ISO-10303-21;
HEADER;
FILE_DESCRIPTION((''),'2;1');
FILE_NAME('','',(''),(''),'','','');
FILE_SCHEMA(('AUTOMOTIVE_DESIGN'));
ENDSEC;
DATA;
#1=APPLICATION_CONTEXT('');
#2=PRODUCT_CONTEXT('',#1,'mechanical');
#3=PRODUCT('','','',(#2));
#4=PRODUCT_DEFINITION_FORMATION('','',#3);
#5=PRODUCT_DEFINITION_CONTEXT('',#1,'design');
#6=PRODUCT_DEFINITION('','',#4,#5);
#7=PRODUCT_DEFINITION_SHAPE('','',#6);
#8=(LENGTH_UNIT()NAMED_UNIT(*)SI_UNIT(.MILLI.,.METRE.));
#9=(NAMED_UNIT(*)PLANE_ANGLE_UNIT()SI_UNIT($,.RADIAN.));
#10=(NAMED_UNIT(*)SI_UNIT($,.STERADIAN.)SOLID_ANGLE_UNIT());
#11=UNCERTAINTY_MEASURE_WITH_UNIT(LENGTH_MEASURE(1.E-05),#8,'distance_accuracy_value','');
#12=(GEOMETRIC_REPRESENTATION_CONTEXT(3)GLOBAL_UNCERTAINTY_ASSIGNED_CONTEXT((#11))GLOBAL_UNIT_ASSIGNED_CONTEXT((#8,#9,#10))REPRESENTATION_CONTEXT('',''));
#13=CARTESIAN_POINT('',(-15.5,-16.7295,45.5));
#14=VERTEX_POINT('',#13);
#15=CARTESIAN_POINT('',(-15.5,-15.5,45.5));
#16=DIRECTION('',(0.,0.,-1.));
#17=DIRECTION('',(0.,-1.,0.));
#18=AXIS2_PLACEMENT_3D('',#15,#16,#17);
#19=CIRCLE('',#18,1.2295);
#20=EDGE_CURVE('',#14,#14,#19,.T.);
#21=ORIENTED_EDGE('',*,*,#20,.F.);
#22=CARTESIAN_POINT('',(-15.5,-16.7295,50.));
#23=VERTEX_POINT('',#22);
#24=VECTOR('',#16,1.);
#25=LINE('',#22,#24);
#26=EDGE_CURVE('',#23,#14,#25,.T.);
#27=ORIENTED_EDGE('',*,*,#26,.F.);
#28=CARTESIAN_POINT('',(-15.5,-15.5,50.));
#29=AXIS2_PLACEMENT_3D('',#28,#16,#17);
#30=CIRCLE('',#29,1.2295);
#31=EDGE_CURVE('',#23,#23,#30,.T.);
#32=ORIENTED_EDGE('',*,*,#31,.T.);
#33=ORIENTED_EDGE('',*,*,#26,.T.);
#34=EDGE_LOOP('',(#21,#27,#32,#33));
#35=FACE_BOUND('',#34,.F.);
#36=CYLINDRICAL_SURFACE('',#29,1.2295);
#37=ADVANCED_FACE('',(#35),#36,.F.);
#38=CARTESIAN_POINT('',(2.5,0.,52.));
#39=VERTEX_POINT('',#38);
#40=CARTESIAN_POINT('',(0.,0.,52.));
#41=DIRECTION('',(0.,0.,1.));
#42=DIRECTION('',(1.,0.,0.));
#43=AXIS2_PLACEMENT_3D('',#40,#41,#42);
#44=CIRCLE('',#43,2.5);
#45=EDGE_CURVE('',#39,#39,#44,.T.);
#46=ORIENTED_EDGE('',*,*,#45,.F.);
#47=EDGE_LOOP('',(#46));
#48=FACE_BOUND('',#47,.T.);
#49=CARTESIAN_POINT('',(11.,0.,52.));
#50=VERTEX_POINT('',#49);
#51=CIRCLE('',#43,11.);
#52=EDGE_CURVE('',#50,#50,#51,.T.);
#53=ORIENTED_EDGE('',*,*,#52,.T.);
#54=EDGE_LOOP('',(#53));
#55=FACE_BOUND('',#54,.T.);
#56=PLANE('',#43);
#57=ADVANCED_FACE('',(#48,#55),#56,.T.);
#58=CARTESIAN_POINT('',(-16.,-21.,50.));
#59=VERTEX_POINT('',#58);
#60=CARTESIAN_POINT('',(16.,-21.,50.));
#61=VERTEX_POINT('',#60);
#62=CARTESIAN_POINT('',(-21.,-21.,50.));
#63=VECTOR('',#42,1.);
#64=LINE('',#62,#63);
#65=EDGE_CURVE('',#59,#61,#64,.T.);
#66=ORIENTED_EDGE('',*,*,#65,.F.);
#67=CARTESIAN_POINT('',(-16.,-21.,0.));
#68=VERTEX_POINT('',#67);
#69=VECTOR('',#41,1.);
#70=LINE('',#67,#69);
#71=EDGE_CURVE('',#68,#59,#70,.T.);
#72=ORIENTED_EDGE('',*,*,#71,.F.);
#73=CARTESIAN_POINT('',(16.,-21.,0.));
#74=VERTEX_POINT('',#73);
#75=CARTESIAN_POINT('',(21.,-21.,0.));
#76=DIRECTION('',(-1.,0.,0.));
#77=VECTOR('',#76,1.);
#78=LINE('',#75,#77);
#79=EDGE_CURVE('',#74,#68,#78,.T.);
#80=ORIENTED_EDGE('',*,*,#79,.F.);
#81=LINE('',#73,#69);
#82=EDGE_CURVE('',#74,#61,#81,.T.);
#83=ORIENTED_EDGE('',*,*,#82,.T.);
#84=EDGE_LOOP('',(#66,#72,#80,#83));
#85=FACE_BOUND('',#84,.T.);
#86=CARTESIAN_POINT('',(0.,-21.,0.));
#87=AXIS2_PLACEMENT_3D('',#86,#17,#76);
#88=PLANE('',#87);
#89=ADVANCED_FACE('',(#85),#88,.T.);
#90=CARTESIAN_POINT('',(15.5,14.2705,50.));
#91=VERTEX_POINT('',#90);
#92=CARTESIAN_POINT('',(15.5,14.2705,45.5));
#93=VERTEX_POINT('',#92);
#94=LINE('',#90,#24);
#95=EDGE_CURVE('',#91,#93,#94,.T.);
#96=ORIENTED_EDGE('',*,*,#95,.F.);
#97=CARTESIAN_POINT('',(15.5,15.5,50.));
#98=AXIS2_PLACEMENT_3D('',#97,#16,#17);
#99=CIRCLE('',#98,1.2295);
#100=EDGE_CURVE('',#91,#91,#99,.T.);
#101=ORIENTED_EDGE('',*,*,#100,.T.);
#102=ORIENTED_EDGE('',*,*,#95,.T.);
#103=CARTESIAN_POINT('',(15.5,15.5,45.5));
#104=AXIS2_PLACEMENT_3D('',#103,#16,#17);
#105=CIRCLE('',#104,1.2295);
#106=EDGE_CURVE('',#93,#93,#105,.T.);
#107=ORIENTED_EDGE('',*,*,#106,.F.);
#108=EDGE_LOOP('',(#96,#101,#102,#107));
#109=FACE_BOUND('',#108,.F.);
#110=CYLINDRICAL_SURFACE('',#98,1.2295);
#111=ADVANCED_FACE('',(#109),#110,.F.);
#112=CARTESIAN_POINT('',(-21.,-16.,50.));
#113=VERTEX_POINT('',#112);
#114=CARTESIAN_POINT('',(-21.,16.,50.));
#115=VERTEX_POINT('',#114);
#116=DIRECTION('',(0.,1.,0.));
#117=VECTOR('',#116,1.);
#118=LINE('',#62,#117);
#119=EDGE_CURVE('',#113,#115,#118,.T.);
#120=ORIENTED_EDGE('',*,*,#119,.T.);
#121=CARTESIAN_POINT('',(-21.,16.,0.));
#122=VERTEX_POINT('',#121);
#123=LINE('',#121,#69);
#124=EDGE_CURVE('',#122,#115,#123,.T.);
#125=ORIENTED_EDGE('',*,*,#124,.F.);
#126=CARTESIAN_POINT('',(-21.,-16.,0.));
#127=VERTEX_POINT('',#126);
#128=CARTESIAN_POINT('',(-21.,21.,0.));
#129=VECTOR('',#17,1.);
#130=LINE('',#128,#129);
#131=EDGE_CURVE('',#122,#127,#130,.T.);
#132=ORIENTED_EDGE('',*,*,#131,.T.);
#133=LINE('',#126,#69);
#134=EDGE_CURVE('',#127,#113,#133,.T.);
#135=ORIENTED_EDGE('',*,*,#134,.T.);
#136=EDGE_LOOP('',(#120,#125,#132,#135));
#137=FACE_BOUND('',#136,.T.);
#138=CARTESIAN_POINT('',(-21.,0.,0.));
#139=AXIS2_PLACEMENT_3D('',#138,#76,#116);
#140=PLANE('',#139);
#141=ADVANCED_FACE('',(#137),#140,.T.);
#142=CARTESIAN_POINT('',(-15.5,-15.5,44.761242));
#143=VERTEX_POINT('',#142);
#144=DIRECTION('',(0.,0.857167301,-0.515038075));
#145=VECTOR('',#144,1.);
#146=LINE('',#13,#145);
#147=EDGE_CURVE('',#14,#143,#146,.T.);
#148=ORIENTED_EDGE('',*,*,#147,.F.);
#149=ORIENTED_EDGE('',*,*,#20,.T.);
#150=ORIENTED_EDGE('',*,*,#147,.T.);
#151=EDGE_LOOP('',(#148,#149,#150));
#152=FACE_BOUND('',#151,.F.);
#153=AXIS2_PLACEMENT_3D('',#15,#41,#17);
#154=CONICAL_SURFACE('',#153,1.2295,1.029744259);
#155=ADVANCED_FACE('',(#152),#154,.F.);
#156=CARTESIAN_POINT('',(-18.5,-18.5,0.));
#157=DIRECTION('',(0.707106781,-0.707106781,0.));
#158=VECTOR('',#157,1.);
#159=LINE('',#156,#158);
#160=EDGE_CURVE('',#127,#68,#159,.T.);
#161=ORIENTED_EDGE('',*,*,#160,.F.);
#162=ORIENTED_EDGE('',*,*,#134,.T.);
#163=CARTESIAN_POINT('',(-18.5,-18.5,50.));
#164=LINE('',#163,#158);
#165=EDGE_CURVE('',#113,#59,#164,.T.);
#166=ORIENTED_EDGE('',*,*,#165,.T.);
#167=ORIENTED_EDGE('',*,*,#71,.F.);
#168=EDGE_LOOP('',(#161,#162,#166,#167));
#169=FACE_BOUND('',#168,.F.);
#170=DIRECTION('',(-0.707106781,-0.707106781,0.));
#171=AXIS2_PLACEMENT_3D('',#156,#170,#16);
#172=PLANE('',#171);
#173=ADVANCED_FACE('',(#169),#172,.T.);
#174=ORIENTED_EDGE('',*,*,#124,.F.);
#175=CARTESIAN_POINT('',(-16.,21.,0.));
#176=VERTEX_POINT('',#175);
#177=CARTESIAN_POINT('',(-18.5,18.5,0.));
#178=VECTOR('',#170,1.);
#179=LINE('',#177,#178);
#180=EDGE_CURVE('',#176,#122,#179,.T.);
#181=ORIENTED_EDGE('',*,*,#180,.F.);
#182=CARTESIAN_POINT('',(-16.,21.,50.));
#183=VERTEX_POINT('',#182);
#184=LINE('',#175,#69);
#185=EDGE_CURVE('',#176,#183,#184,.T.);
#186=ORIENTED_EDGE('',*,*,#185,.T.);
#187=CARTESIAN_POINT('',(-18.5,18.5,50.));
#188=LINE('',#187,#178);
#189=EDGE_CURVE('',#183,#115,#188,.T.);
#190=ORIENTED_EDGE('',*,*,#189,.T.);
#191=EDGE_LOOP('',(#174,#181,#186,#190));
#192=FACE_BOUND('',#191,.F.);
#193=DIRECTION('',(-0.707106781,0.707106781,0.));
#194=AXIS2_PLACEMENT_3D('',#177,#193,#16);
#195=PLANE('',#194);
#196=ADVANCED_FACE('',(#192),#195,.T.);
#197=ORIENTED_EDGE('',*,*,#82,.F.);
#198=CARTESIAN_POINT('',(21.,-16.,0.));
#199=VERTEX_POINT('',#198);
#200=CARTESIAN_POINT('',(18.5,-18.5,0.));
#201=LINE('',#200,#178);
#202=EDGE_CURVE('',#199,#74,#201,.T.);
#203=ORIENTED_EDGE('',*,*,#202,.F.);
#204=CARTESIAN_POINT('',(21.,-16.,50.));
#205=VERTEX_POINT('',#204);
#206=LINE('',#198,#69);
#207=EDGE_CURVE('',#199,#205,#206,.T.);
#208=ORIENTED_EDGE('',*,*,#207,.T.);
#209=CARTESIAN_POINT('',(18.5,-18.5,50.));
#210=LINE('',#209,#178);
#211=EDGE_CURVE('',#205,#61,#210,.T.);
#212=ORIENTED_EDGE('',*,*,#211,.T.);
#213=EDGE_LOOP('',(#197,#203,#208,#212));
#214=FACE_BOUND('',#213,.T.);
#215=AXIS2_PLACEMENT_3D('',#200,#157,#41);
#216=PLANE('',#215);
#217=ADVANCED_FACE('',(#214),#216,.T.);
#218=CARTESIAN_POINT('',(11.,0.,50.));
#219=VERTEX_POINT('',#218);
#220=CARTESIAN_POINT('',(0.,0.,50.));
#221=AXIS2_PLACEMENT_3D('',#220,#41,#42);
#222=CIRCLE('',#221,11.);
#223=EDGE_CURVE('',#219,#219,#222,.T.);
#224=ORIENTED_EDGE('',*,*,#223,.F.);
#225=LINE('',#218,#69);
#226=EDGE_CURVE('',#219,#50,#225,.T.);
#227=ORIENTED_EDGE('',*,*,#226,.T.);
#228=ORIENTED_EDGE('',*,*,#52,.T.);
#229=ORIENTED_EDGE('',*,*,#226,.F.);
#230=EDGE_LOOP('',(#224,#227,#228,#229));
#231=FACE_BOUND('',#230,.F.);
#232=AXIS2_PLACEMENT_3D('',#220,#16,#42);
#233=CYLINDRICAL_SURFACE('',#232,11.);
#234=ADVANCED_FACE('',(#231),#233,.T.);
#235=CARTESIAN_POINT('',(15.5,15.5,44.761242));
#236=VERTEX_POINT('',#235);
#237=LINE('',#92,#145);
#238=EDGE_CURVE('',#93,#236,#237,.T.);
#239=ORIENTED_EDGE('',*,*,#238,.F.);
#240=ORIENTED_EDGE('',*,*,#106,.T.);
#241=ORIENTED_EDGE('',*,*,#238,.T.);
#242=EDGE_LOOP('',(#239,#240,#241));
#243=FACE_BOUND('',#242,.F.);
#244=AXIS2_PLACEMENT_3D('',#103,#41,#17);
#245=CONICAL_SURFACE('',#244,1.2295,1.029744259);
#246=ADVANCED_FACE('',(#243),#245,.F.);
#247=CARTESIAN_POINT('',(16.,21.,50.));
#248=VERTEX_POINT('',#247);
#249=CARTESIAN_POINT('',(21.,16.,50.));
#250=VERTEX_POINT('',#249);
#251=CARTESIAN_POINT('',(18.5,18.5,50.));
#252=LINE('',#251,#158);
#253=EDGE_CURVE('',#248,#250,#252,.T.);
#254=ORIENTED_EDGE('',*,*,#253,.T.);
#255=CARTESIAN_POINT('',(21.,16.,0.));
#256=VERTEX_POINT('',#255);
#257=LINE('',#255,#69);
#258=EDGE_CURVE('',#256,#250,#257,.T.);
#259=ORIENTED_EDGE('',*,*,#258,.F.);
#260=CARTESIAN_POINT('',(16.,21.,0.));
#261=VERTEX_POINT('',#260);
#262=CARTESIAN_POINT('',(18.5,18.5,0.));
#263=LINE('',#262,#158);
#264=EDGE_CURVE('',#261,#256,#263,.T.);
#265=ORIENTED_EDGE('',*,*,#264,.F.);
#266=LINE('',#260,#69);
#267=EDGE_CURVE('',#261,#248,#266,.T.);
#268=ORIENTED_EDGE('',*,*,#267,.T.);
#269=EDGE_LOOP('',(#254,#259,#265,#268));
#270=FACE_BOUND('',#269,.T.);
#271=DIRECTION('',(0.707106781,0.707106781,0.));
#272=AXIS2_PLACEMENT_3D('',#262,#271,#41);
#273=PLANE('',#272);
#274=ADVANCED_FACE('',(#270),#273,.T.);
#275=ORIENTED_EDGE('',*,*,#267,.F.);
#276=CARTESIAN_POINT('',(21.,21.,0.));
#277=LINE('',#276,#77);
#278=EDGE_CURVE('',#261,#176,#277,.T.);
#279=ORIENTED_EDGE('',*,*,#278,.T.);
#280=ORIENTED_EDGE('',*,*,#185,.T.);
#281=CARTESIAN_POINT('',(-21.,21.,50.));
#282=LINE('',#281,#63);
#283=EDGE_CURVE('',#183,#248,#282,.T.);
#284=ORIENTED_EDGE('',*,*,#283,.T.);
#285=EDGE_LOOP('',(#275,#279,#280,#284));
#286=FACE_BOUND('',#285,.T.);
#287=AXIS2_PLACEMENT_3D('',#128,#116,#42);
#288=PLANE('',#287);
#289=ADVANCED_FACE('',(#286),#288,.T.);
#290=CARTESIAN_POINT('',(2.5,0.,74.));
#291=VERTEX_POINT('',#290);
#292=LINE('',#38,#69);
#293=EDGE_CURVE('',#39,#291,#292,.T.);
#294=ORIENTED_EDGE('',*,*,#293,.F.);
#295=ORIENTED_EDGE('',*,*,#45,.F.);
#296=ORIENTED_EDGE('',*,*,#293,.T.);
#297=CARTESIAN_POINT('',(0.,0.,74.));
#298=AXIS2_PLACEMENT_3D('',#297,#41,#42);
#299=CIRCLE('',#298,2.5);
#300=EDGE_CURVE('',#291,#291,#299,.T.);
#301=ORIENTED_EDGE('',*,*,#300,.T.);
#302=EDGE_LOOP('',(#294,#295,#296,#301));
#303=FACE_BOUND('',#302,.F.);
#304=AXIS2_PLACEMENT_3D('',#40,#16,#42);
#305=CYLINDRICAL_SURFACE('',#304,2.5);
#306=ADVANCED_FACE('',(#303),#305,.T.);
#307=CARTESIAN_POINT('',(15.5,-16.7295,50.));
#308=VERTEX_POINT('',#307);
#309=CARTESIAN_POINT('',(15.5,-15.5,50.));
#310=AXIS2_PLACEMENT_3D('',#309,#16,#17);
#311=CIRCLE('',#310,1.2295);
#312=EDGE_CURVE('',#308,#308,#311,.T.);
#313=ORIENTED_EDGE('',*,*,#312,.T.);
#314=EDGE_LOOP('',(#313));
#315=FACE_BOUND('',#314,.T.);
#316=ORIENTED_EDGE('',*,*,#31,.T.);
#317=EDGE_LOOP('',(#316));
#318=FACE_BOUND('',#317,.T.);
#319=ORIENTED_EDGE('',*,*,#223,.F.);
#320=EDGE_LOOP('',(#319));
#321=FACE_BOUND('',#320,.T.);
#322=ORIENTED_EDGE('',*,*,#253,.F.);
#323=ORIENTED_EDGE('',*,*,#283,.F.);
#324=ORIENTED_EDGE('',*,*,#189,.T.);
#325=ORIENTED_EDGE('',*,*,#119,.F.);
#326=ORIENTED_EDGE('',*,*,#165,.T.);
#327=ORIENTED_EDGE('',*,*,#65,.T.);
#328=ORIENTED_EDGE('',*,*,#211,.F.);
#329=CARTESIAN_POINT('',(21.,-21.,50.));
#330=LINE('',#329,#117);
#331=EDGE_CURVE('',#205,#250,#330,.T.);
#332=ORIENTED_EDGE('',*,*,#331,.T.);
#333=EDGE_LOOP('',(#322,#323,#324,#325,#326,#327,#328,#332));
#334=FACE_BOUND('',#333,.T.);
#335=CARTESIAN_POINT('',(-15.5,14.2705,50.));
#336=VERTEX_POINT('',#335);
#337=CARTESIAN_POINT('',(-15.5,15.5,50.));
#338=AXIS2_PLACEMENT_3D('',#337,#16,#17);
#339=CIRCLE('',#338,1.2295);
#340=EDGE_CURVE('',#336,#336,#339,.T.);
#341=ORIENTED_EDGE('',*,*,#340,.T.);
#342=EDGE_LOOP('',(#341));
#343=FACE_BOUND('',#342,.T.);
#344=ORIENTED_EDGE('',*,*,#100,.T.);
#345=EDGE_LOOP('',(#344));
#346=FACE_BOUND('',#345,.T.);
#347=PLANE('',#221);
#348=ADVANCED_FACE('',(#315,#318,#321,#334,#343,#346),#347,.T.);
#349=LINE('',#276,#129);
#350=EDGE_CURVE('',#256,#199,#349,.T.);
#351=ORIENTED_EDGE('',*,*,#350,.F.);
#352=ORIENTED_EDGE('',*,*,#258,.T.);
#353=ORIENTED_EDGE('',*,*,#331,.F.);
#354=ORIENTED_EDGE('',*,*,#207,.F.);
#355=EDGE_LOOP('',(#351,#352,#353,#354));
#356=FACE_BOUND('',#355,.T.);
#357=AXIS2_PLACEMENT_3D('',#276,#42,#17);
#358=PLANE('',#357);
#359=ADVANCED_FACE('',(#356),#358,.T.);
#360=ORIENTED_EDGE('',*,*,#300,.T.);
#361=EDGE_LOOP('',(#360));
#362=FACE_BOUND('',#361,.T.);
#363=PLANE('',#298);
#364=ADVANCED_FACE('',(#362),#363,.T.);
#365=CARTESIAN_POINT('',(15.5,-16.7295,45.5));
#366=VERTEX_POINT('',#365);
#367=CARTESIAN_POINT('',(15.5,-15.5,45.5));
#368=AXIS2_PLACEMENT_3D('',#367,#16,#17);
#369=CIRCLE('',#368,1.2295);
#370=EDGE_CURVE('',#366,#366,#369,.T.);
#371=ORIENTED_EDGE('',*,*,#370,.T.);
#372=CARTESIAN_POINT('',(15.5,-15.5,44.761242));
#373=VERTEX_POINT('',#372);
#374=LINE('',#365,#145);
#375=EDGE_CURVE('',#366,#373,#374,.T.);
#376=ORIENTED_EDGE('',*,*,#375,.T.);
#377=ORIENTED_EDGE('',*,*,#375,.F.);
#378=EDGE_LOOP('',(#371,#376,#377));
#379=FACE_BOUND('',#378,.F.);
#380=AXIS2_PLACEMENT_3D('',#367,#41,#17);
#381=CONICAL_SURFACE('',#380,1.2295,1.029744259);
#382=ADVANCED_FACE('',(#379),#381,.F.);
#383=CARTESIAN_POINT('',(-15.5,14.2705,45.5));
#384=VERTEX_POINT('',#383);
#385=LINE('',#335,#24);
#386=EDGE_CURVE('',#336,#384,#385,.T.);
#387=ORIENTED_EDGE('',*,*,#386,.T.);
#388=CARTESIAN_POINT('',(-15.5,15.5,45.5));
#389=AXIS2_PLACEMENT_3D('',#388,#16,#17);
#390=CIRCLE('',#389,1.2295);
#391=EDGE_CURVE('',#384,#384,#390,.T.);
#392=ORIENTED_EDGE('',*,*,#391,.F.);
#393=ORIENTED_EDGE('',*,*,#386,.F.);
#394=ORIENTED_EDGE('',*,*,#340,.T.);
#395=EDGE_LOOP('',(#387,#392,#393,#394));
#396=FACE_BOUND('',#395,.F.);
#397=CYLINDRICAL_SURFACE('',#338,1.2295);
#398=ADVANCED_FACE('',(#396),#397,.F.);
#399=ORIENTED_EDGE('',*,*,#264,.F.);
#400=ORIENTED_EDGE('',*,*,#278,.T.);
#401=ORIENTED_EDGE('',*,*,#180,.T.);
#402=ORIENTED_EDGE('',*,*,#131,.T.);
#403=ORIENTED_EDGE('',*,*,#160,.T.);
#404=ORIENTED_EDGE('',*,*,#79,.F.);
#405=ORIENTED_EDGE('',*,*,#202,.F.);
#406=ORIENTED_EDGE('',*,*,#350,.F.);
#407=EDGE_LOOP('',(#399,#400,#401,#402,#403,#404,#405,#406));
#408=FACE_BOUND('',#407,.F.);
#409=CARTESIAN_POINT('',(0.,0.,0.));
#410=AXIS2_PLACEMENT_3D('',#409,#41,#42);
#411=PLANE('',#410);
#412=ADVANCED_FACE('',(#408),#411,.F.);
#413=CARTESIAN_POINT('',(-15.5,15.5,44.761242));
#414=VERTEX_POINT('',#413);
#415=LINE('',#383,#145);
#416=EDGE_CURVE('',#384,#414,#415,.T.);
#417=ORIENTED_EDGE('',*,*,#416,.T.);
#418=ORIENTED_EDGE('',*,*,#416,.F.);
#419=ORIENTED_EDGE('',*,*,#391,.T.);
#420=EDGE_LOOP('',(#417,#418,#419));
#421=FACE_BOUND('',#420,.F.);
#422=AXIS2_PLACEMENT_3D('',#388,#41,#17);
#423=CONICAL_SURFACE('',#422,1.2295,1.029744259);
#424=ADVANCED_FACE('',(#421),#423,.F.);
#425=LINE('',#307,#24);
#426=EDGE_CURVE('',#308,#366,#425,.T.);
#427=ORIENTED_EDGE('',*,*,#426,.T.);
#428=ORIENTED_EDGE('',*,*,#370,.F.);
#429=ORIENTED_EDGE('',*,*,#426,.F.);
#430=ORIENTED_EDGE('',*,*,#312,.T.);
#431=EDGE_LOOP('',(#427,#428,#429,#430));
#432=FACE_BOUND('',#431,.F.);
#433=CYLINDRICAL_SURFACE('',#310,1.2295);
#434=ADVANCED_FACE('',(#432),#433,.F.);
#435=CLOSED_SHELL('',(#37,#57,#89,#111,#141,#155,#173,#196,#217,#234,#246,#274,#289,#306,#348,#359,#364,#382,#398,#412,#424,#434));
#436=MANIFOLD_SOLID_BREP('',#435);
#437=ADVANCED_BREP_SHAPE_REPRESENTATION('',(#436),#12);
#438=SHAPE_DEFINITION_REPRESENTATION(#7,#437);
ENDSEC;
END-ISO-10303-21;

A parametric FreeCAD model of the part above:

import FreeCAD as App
import Part
import Sketcher


def edges_at(feature, points):
    """Names of the edges that pass closest to the given points."""
    edges = feature.Shape.Edges
    near = lambda p: min(range(len(edges)), key=lambda i: edges[i].distToShape(Part.Vertex(*p))[0])
    return sorted({f"Edge{near(p) + 1}" for p in points})


def add_polygon(sketch, points):
    """Adds a closed chain of lines whose ends are joined by coincident constraints."""
    first, n = sketch.GeometryCount, len(points)
    for a, b in zip(points, points[1:] + points[:1]):
        sketch.addGeometry(Part.LineSegment(App.Vector(*a, 0), App.Vector(*b, 0)), False)
    for i in range(n):
        sketch.addConstraint(Sketcher.Constraint("Coincident", first + i, 2, first + (i + 1) % n, 1))

doc = App.newDocument("Part")
params = doc.addObject("Spreadsheet::Sheet", "Params")
for row, (alias, value) in enumerate([
    ("sketch1_width", "42 mm"),
    ("pad1_length", "50 mm"),
    ("sketch2_diameter", "22 mm"),
    ("pad2_length", "2 mm"),
    ("sketch3_diameter", "5 mm"),
    ("pad3_length", "22 mm"),
    ("chamfer_size", "5 mm"),
    ("hole_diameter", "2.459 mm"),
    ("hole_depth", "4.5 mm"),
], start=1):
    params.set(f"A{row}", alias)
    params.set(f"B{row}", "=" + value)
    params.setAlias(f"B{row}", alias)

body = doc.addObject("PartDesign::Body", "Body")

sketch1 = doc.addObject("Sketcher::SketchObject", "Sketch")
body.addObject(sketch1)
sketch1.AttachmentSupport = (doc.XY_Plane, [""])
sketch1.MapMode = "FlatFace"
add_polygon(sketch1, [(-21, 21), (-21, -21), (21, -21), (21, 21)])
sketch1.addConstraint([
    Sketcher.Constraint("Vertical", 0),
    Sketcher.Constraint("Horizontal", 1),
    Sketcher.Constraint("Vertical", 2),
    Sketcher.Constraint("Horizontal", 3),
    Sketcher.Constraint("Symmetric", 0, 2, 2, 2, -1, 1),
    Sketcher.Constraint("Equal", 3, 0),
    Sketcher.Constraint("DistanceX", 1, 1, 1, 2, 42.0),
])
sketch1.setExpression("Constraints[10]", "Params.sketch1_width")
pad1 = doc.addObject("PartDesign::Pad", "Pad")
body.addObject(pad1)
pad1.Profile = sketch1
pad1.setExpression("Length", "Params.pad1_length")

sketch2 = doc.addObject("Sketcher::SketchObject", "Sketch001")
body.addObject(sketch2)
sketch2.AttachmentSupport = (doc.XY_Plane, [""])
sketch2.MapMode = "FlatFace"
sketch2.AttachmentOffset = App.Placement(App.Vector(0, 0, 50), App.Rotation())
sketch2.addGeometry(Part.Circle(App.Vector(0, 0, 0), App.Vector(0, 0, 1), 11), False)
sketch2.addConstraint([
    Sketcher.Constraint("Coincident", 0, 3, -1, 1),
    Sketcher.Constraint("Diameter", 0, 22.0),
])
sketch2.setExpression("Constraints[1]", "Params.sketch2_diameter")
pad2 = doc.addObject("PartDesign::Pad", "Pad001")
body.addObject(pad2)
pad2.Profile = sketch2
pad2.setExpression("Length", "Params.pad2_length")

sketch3 = doc.addObject("Sketcher::SketchObject", "Sketch002")
body.addObject(sketch3)
sketch3.AttachmentSupport = (doc.XY_Plane, [""])
sketch3.MapMode = "FlatFace"
sketch3.AttachmentOffset = App.Placement(App.Vector(0, 0, 52), App.Rotation())
sketch3.addGeometry(Part.Circle(App.Vector(0, 0, 0), App.Vector(0, 0, 1), 2.5), False)
sketch3.addConstraint([
    Sketcher.Constraint("Coincident", 0, 3, -1, 1),
    Sketcher.Constraint("Diameter", 0, 5.0),
])
sketch3.setExpression("Constraints[1]", "Params.sketch3_diameter")
pad3 = doc.addObject("PartDesign::Pad", "Pad002")
body.addObject(pad3)
pad3.Profile = sketch3
pad3.setExpression("Length", "Params.pad3_length")
doc.recompute()

chamfer = doc.addObject("PartDesign::Chamfer", "Chamfer")
body.addObject(chamfer)
chamfer.Base = (pad3, edges_at(pad3, [
    (-21, -21, 25),
    (21, -21, 25),
    (21, 21, 25),
    (-21, 21, 25),
]))
chamfer.setExpression("Size", "Params.chamfer_size")

sketch4 = doc.addObject("Sketcher::SketchObject", "Sketch003")
body.addObject(sketch4)
sketch4.AttachmentSupport = (doc.XY_Plane, [""])
sketch4.MapMode = "FlatFace"
sketch4.AttachmentOffset = App.Placement(App.Vector(0, 0, 50), App.Rotation())
sketch4.addGeometry([
    Part.Circle(App.Vector(-15.5, 15.5, 0), App.Vector(0, 0, 1), 1.2),
    Part.Circle(App.Vector(15.5, 15.5, 0), App.Vector(0, 0, 1), 1.2),
    Part.Circle(App.Vector(15.5, -15.5, 0), App.Vector(0, 0, 1), 1.2),
    Part.Circle(App.Vector(-15.5, -15.5, 0), App.Vector(0, 0, 1), 1.2),
], False)
sketch4.addConstraint([
    Sketcher.Constraint("Equal", 0, 1),
    Sketcher.Constraint("Equal", 1, 2),
    Sketcher.Constraint("Equal", 2, 3),
    Sketcher.Constraint("Symmetric", 0, 3, 2, 3, -1, 1),
    Sketcher.Constraint("Symmetric", 1, 3, 3, 3, -1, 1),
    Sketcher.Constraint("Symmetric", 0, 3, 1, 3, -2),
    Sketcher.Constraint("Diameter", 0, 2.459),
    Sketcher.Constraint("DistanceX", 0, 3, 1, 3, 31.0),
    Sketcher.Constraint("DistanceY", 2, 3, 1, 3, 31.0),
])
doc.recompute()
hole = doc.addObject("PartDesign::Hole", "Hole")
body.addObject(hole)
hole.Profile = sketch4
hole.ThreadType = "None"
hole.setExpression("Diameter", "Params.hole_diameter")
hole.DepthType = "Dimension"
hole.setExpression("Depth", "Params.hole_depth")
hole.DrillPoint = "Angled"
hole.DrillPointAngle = 118

doc.recompute()
